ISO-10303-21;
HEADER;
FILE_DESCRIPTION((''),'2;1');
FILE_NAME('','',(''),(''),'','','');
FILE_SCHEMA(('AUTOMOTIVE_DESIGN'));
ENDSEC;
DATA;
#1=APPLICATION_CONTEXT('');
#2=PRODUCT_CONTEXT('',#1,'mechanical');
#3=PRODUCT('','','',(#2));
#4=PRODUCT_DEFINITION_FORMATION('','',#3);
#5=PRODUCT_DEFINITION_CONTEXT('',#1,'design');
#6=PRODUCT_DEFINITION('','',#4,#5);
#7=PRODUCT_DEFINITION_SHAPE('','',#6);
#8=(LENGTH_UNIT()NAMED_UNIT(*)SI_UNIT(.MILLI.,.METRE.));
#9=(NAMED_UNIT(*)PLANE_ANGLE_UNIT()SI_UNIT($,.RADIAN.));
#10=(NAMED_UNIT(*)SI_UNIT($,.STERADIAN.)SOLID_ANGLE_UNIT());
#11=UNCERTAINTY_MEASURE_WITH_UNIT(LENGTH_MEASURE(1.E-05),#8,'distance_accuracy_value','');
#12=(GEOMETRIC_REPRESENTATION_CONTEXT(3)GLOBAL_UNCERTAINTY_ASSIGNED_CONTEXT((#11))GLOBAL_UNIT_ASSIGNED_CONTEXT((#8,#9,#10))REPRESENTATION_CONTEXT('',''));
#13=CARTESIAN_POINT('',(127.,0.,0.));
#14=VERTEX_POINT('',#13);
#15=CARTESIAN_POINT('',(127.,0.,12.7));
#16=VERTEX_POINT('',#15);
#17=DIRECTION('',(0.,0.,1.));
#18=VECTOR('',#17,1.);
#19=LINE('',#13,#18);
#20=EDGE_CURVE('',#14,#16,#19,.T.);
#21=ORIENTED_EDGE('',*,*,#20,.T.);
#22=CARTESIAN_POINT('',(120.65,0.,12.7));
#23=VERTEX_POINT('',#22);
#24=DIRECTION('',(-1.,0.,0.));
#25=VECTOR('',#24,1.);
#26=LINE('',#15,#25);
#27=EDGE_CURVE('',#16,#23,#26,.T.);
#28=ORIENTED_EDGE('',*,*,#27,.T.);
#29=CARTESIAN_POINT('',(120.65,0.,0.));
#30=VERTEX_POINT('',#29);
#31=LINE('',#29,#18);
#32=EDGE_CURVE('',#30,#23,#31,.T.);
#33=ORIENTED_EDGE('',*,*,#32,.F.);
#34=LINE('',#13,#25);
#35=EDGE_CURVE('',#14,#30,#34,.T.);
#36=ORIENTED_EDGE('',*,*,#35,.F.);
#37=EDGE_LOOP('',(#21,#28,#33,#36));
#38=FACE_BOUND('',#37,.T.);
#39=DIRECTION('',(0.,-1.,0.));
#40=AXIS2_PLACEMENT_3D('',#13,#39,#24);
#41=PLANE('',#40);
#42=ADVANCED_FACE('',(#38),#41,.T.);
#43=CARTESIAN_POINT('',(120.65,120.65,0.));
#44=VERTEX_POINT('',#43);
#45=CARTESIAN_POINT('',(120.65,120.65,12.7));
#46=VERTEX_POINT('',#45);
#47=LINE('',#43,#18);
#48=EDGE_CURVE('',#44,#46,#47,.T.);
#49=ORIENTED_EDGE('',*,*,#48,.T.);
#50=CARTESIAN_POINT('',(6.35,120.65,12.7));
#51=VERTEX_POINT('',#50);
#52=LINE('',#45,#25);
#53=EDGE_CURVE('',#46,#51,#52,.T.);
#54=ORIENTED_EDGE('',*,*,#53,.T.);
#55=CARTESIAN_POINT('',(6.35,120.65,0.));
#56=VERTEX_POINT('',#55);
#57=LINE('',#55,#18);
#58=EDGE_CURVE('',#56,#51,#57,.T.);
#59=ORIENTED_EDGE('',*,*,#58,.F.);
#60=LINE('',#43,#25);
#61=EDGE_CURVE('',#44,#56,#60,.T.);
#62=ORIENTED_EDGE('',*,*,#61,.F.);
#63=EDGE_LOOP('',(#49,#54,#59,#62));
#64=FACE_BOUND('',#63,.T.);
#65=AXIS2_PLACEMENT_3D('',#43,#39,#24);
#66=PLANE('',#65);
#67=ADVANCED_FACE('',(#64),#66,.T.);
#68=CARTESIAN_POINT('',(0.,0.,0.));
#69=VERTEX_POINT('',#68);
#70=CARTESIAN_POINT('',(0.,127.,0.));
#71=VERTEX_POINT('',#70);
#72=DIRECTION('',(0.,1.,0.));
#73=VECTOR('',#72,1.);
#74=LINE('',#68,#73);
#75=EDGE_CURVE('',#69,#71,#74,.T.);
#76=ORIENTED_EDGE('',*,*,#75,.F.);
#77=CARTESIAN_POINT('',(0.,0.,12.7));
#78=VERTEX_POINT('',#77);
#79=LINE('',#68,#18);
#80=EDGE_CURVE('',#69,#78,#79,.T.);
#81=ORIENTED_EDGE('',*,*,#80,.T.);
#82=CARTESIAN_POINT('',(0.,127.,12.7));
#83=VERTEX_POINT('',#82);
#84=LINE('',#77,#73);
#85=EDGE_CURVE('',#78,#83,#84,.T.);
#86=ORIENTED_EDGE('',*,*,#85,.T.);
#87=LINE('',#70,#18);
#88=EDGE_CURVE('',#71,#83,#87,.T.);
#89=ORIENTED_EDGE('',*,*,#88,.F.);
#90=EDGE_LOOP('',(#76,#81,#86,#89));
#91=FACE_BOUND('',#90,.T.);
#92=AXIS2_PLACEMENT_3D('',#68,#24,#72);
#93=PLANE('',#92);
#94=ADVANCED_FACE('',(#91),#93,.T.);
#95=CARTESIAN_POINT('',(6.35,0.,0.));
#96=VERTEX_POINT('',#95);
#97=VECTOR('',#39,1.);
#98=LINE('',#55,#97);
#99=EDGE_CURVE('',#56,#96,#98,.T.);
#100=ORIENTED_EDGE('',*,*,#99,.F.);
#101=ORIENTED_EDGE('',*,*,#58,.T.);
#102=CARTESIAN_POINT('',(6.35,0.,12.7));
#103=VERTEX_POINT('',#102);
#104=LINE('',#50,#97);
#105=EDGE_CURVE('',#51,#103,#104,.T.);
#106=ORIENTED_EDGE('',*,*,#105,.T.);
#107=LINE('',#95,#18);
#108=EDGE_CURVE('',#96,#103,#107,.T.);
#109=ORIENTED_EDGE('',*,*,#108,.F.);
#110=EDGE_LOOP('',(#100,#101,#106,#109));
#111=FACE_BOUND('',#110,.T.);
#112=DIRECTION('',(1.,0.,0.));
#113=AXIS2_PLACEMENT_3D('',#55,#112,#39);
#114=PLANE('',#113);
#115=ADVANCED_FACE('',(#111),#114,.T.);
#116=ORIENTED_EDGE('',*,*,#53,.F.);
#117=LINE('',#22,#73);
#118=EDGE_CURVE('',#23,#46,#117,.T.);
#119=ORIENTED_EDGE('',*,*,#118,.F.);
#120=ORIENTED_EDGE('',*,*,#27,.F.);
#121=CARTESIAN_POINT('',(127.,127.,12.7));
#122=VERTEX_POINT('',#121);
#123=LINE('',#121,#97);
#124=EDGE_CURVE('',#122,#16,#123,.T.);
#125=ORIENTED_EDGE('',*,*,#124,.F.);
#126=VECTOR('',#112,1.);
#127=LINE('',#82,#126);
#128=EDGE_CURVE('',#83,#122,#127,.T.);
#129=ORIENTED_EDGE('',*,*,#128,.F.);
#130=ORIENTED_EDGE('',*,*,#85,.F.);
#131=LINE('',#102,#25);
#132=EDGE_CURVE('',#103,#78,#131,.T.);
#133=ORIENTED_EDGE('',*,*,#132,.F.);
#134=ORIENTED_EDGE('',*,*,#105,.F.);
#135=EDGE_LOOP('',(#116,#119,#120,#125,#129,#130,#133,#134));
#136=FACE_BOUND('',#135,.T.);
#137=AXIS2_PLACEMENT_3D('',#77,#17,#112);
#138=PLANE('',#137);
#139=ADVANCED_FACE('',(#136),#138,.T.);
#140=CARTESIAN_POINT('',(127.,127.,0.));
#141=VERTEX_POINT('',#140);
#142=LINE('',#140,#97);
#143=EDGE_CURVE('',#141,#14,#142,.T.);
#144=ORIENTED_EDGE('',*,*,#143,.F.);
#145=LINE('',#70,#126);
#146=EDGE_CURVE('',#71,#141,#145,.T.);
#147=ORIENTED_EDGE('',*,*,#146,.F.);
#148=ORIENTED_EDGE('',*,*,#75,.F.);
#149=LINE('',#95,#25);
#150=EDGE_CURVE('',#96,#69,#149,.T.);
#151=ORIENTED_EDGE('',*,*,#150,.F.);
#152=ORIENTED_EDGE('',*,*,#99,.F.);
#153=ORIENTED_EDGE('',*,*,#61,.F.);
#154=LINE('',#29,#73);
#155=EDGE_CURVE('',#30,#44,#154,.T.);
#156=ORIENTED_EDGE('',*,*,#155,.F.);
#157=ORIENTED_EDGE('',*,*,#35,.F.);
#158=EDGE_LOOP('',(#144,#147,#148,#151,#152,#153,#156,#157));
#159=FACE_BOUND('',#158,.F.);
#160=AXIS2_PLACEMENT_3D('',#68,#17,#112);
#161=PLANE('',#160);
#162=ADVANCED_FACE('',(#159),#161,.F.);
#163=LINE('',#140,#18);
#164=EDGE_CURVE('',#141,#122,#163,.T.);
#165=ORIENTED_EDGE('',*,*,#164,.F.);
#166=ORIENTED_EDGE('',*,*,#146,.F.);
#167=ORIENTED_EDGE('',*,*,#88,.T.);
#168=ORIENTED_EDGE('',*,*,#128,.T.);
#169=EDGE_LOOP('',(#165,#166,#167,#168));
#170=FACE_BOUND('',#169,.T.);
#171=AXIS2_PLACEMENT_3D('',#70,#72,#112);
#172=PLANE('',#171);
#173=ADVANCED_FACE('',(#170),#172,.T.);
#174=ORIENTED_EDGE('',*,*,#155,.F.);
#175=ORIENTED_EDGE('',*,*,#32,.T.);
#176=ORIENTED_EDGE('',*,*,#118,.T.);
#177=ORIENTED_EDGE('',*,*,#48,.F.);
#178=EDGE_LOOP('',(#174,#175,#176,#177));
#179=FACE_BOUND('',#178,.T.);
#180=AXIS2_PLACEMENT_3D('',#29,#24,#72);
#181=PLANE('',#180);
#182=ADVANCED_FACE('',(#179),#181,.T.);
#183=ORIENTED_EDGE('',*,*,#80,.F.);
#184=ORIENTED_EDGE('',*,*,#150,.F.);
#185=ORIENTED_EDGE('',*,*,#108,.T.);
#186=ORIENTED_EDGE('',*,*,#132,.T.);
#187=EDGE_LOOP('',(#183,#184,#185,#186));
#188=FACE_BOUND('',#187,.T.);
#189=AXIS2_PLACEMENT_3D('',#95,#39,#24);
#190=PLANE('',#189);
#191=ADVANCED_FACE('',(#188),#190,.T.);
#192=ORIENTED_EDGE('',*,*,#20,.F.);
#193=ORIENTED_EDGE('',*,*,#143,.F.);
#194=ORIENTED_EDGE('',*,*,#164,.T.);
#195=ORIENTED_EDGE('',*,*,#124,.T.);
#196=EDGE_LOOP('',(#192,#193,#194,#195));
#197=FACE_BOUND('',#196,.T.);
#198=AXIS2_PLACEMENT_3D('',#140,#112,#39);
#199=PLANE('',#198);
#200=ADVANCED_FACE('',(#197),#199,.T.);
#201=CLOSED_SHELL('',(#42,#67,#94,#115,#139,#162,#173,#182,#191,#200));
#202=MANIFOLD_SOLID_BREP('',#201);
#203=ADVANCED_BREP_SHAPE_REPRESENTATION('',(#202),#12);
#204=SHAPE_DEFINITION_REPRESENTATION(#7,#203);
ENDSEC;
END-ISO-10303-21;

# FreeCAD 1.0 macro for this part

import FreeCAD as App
import Part
import Sketcher

V = App.Vector
Q = App.Units.Quantity

doc = App.newDocument("Part")
body = doc.addObject("PartDesign::Body", "Body")

sketch1 = body.newObject("Sketcher::SketchObject", "Sketch")
sketch1.AttachmentSupport = (doc.getObject("XY_Plane"), [""])
sketch1.MapMode = "FlatFace"
sketch1.addGeometry([
    Part.LineSegment(V(0, 127, 0), V(0, 0, 0)),
    Part.LineSegment(V(0, 0, 0), V(6, 0, 0)),
    Part.LineSegment(V(6, 0, 0), V(6, 121, 0)),
    Part.LineSegment(V(6, 121, 0), V(121, 121, 0)),
    Part.LineSegment(V(121, 121, 0), V(121, 0, 0)),
    Part.LineSegment(V(121, 0, 0), V(127, 0, 0)),
    Part.LineSegment(V(127, 0, 0), V(127, 127, 0)),
    Part.LineSegment(V(127, 127, 0), V(0, 127, 0)),
], False)
sketch1.addConstraint([
    Sketcher.Constraint("Coincident", 0, 2, 1, 1),
    Sketcher.Constraint("Coincident", 1, 2, 2, 1),
    Sketcher.Constraint("Coincident", 2, 2, 3, 1),
    Sketcher.Constraint("Coincident", 3, 2, 4, 1),
    Sketcher.Constraint("Coincident", 4, 2, 5, 1),
    Sketcher.Constraint("Coincident", 5, 2, 6, 1),
    Sketcher.Constraint("Coincident", 6, 2, 7, 1),
    Sketcher.Constraint("Coincident", 7, 2, 0, 1),
    Sketcher.Constraint("Vertical", 0),
    Sketcher.Constraint("Horizontal", 1),
    Sketcher.Constraint("Vertical", 2),
    Sketcher.Constraint("Horizontal", 3),
    Sketcher.Constraint("Vertical", 4),
    Sketcher.Constraint("Horizontal", 5),
    Sketcher.Constraint("Vertical", 6),
    Sketcher.Constraint("Horizontal", 7),
    Sketcher.Constraint("Coincident", 0, 2, -1, 1),
    Sketcher.Constraint("PointOnObject", 4, 2, -1),
    Sketcher.Constraint("Equal", 1, 5),
    Sketcher.Constraint("Equal", 7, 0),
    Sketcher.Constraint("DistanceX", 7, 2, 7, 1, Q("5 in")),
    Sketcher.Constraint("DistanceX", 3, 1, 3, 2, Q("4.5 in")),
    Sketcher.Constraint("DistanceY", 2, 1, 2, 2, Q("4.75 in")),
])
pad1 = body.newObject("PartDesign::Pad", "Pad")
pad1.Profile = sketch1
pad1.Length = Q("0.5 in")

doc.recompute()
